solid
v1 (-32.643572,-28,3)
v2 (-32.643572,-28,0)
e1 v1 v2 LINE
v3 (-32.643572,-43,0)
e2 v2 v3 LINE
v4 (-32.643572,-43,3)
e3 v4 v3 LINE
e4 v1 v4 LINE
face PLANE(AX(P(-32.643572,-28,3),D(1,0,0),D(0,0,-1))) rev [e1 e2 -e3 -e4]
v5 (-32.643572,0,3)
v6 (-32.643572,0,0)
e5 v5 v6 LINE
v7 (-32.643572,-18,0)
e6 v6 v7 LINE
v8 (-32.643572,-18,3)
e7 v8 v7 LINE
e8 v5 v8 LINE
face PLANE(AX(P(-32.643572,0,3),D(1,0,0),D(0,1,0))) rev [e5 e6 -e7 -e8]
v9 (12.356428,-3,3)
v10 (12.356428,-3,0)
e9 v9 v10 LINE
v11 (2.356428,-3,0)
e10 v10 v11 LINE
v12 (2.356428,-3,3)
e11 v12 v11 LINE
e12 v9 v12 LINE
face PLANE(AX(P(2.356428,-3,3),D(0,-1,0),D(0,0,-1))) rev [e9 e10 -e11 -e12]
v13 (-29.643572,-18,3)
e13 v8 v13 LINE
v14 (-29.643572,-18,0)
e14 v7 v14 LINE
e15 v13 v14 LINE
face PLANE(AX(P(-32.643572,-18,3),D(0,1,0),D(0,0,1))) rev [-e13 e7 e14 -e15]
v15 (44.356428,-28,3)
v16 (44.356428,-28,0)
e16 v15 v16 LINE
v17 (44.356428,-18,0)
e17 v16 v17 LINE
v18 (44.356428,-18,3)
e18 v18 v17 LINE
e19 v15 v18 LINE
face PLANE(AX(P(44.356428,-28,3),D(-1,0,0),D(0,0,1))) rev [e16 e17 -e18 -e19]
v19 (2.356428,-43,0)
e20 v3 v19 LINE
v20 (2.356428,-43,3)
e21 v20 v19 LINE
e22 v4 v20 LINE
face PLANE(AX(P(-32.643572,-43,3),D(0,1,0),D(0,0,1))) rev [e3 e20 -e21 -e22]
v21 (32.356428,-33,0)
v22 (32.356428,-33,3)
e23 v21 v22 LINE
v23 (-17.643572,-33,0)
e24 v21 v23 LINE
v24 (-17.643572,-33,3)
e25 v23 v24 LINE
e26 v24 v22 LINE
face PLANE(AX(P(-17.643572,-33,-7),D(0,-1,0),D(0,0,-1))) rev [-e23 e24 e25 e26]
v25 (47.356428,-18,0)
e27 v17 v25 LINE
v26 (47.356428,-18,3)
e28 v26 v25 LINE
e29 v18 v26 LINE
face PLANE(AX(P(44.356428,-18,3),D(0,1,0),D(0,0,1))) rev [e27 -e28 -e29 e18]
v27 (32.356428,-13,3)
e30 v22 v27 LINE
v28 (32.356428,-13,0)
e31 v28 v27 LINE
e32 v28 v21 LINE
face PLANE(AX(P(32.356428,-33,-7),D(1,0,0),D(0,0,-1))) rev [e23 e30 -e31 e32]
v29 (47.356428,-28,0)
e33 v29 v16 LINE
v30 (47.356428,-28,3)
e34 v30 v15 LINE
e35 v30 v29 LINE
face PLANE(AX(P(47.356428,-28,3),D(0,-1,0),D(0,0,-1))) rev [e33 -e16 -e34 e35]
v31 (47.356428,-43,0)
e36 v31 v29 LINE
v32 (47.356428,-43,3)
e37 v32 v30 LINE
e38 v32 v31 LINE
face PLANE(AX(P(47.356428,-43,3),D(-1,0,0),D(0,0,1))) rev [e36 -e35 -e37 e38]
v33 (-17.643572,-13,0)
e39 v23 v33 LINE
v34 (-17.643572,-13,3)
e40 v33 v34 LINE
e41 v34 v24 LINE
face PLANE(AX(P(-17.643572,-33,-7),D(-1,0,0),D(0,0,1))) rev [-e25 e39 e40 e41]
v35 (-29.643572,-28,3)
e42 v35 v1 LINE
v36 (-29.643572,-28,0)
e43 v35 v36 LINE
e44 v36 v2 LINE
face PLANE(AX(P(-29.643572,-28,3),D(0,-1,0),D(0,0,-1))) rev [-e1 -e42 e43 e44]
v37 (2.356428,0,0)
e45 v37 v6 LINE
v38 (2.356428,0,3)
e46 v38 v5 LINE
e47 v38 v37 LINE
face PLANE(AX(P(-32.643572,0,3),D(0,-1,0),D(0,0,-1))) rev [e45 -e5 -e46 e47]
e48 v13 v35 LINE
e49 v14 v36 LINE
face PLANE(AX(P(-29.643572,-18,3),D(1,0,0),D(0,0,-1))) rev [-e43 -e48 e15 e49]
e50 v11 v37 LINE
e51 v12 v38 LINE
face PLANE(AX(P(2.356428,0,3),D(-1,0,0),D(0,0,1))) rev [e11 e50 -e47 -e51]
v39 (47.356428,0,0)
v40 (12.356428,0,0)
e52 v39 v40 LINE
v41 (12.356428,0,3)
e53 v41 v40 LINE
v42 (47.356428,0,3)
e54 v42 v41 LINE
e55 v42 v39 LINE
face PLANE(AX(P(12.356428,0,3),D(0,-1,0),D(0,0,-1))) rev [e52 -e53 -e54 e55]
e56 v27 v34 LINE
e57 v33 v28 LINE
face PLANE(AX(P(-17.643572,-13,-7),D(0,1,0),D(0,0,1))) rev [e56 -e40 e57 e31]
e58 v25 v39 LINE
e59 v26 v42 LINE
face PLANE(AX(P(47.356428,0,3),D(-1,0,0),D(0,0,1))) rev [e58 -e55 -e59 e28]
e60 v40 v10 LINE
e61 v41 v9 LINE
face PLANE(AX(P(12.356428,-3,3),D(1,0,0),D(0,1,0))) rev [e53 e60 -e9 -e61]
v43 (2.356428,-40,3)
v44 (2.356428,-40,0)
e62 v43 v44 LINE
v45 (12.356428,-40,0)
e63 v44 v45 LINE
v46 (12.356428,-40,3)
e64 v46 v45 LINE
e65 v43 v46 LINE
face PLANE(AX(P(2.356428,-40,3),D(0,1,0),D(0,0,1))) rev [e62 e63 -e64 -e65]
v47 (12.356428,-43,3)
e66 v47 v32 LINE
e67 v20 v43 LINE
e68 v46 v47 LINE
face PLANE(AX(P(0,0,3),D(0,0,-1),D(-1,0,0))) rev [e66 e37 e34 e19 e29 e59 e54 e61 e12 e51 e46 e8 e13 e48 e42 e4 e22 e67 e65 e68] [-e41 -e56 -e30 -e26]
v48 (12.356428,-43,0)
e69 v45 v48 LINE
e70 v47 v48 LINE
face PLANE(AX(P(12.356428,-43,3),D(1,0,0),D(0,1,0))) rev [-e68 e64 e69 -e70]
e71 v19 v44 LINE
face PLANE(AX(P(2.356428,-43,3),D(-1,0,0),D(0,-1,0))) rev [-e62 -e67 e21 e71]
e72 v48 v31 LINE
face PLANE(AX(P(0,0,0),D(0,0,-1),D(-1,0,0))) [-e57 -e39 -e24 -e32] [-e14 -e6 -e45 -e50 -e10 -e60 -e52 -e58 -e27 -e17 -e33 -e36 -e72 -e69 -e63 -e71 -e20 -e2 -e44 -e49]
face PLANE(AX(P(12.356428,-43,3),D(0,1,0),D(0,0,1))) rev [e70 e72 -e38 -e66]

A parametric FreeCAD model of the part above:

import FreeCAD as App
import Part
import Sketcher

V = App.Vector


def add_polygon(sketch, points):
    """Adds a closed chain of lines whose ends are joined by coincident constraints."""
    first, n = sketch.GeometryCount, len(points)
    for a, b in zip(points, points[1:] + points[:1]):
        sketch.addGeometry(Part.LineSegment(App.Vector(*a, 0), App.Vector(*b, 0)), False)
    for i in range(n):
        sketch.addConstraint(Sketcher.Constraint("Coincident", first + i, 2, first + (i + 1) % n, 1))

doc = App.newDocument("Part")
params = doc.addObject("Spreadsheet::Sheet", "Params")
for row, (alias, value) in enumerate([
    ("sketch1_width", "3 mm"),
    ("sketch1_width2", "35 mm"),
    ("sketch1_width3", "10 mm"),
    ("sketch1_height", "18 mm"),
    ("sketch1_height2", "15 mm"),
    ("pad1_length", "3 mm"),
    ("sketch2_width", "50 mm"),
    ("sketch2_height", "20 mm"),
    ("pocket1_length", "10 mm"),
], start=1):
    params.set(f"A{row}", alias)
    params.set(f"B{row}", "=" + value)
    params.setAlias(f"B{row}", alias)

body = doc.addObject("PartDesign::Body", "Body")

# Sketch on XY plane
sketch1 = doc.addObject("Sketcher::SketchObject", "Sketch")
body.addObject(sketch1)
sketch1.AttachmentSupport = (doc.XY_Plane, [""])
sketch1.MapMode = "FlatFace"
add_polygon(sketch1, [(-32.6, 0), (-32.6, -18), (-29.6, -18), (-29.6, -28), (-32.6, -28), (-32.6, -43), (2.4, -43), (2.4, -40), (12.4, -40), (12.4, -43), (47.4, -43), (47.4, -28), (44.4, -28), (44.4, -18), (47.4, -18), (47.4, 0), (12.4, 0), (12.4, -3), (2.4, -3), (2.4, 0)])  # lines 0-19
sketch1.addConstraint(Sketcher.Constraint("Vertical", 0))
sketch1.addConstraint(Sketcher.Constraint("Horizontal", 1))
sketch1.addConstraint(Sketcher.Constraint("Vertical", 2))
sketch1.addConstraint(Sketcher.Constraint("Horizontal", 3))
sketch1.addConstraint(Sketcher.Constraint("Vertical", 4))
sketch1.addConstraint(Sketcher.Constraint("Horizontal", 5))
sketch1.addConstraint(Sketcher.Constraint("Vertical", 6))
sketch1.addConstraint(Sketcher.Constraint("Horizontal", 7))
sketch1.addConstraint(Sketcher.Constraint("Vertical", 8))
sketch1.addConstraint(Sketcher.Constraint("Horizontal", 9))
sketch1.addConstraint(Sketcher.Constraint("Vertical", 10))
sketch1.addConstraint(Sketcher.Constraint("Horizontal", 11))
sketch1.addConstraint(Sketcher.Constraint("Vertical", 12))
sketch1.addConstraint(Sketcher.Constraint("Horizontal", 13))
sketch1.addConstraint(Sketcher.Constraint("Vertical", 14))
sketch1.addConstraint(Sketcher.Constraint("Horizontal", 15))
sketch1.addConstraint(Sketcher.Constraint("Vertical", 16))
sketch1.addConstraint(Sketcher.Constraint("Horizontal", 17))
sketch1.addConstraint(Sketcher.Constraint("Vertical", 18))
sketch1.addConstraint(Sketcher.Constraint("Horizontal", 19))
sketch1.addConstraint(Sketcher.Constraint("PointOnObject", 14, 2, -1))
sketch1.addConstraint(Sketcher.Constraint("PointOnObject", 18, 2, -1))
sketch1.addConstraint(Sketcher.Constraint("Horizontal", 5, 2, 8, 2))
sketch1.addConstraint(Sketcher.Constraint("Horizontal", 3, 2, 10, 2))
sketch1.addConstraint(Sketcher.Constraint("Horizontal", 1, 2, 12, 2))
sketch1.addConstraint(Sketcher.Constraint("Vertical", 0, 2, 3, 2))
sketch1.addConstraint(Sketcher.Constraint("Vertical", 10, 2, 13, 2))
sketch1.addConstraint(Sketcher.Constraint("Vertical", 8, 2, 15, 2))
sketch1.addConstraint(Sketcher.Constraint("Vertical", 6, 2, 17, 2))
sketch1.addConstraint(Sketcher.Constraint("Equal", 5, 9))
sketch1.addConstraint(Sketcher.Constraint("Equal", 3, 11))
sketch1.addConstraint(Sketcher.Constraint("Equal", 17, 2))
sketch1.addConstraint(Sketcher.Constraint("Equal", 13, 6))
sketch1.addConstraint(Sketcher.Constraint("Equal", 8, 16))
sketch1.addConstraint(Sketcher.Constraint("DistanceX", 1, 1, 1, 2, 3.0))
sketch1.addConstraint(Sketcher.Constraint("DistanceX", 5, 1, 5, 2, 35.0))
sketch1.addConstraint(Sketcher.Constraint("DistanceX", 7, 1, 7, 2, 10.0))
sketch1.addConstraint(Sketcher.Constraint("DistanceY", 0, 2, 0, 1, 18.0))
sketch1.addConstraint(Sketcher.Constraint("DistanceY", 4, 2, 4, 1, 15.0))
sketch1.addConstraint(Sketcher.Constraint("DistanceX", 0, 2, -1, 1, 32.643572))
sketch1.setExpression("Constraints[54]", "Params.sketch1_width")
sketch1.setExpression("Constraints[55]", "Params.sketch1_width2")
sketch1.setExpression("Constraints[56]", "Params.sketch1_width3")
sketch1.setExpression("Constraints[57]", "Params.sketch1_height")
sketch1.setExpression("Constraints[58]", "Params.sketch1_height2")
pad1 = doc.addObject("PartDesign::Pad", "Pad")
body.addObject(pad1)
pad1.Profile = sketch1
pad1.setExpression("Length", "Params.pad1_length")

# Sketch on XY plane
sketch2 = doc.addObject("Sketcher::SketchObject", "Sketch001")
body.addObject(sketch2)
sketch2.AttachmentSupport = (doc.XY_Plane, [""])
sketch2.MapMode = "FlatFace"
sketch2.AttachmentOffset = App.Placement(V(0, 0, 3), App.Rotation())
add_polygon(sketch2, [(-18, -13), (-18, -33), (32, -33), (32, -13)])  # lines 0-3
sketch2.addConstraint(Sketcher.Constraint("Vertical", 0))
sketch2.addConstraint(Sketcher.Constraint("Horizontal", 1))
sketch2.addConstraint(Sketcher.Constraint("Vertical", 2))
sketch2.addConstraint(Sketcher.Constraint("Horizontal", 3))
sketch2.addConstraint(Sketcher.Constraint("DistanceX", 1, 1, 1, 2, 50.0))
sketch2.addConstraint(Sketcher.Constraint("DistanceY", 0, 2, 0, 1, 20.0))
sketch2.addConstraint(Sketcher.Constraint("DistanceY", 0, 2, -1, 1, 33.0))
sketch2.addConstraint(Sketcher.Constraint("DistanceX", 0, 2, -1, 1, 17.643572))
sketch2.setExpression("Constraints[8]", "Params.sketch2_width")
sketch2.setExpression("Constraints[9]", "Params.sketch2_height")
pocket1 = doc.addObject("PartDesign::Pocket", "Pocket")
body.addObject(pocket1)
pocket1.Profile = sketch2
pocket1.setExpression("Length", "Params.pocket1_length")

doc.recompute()
